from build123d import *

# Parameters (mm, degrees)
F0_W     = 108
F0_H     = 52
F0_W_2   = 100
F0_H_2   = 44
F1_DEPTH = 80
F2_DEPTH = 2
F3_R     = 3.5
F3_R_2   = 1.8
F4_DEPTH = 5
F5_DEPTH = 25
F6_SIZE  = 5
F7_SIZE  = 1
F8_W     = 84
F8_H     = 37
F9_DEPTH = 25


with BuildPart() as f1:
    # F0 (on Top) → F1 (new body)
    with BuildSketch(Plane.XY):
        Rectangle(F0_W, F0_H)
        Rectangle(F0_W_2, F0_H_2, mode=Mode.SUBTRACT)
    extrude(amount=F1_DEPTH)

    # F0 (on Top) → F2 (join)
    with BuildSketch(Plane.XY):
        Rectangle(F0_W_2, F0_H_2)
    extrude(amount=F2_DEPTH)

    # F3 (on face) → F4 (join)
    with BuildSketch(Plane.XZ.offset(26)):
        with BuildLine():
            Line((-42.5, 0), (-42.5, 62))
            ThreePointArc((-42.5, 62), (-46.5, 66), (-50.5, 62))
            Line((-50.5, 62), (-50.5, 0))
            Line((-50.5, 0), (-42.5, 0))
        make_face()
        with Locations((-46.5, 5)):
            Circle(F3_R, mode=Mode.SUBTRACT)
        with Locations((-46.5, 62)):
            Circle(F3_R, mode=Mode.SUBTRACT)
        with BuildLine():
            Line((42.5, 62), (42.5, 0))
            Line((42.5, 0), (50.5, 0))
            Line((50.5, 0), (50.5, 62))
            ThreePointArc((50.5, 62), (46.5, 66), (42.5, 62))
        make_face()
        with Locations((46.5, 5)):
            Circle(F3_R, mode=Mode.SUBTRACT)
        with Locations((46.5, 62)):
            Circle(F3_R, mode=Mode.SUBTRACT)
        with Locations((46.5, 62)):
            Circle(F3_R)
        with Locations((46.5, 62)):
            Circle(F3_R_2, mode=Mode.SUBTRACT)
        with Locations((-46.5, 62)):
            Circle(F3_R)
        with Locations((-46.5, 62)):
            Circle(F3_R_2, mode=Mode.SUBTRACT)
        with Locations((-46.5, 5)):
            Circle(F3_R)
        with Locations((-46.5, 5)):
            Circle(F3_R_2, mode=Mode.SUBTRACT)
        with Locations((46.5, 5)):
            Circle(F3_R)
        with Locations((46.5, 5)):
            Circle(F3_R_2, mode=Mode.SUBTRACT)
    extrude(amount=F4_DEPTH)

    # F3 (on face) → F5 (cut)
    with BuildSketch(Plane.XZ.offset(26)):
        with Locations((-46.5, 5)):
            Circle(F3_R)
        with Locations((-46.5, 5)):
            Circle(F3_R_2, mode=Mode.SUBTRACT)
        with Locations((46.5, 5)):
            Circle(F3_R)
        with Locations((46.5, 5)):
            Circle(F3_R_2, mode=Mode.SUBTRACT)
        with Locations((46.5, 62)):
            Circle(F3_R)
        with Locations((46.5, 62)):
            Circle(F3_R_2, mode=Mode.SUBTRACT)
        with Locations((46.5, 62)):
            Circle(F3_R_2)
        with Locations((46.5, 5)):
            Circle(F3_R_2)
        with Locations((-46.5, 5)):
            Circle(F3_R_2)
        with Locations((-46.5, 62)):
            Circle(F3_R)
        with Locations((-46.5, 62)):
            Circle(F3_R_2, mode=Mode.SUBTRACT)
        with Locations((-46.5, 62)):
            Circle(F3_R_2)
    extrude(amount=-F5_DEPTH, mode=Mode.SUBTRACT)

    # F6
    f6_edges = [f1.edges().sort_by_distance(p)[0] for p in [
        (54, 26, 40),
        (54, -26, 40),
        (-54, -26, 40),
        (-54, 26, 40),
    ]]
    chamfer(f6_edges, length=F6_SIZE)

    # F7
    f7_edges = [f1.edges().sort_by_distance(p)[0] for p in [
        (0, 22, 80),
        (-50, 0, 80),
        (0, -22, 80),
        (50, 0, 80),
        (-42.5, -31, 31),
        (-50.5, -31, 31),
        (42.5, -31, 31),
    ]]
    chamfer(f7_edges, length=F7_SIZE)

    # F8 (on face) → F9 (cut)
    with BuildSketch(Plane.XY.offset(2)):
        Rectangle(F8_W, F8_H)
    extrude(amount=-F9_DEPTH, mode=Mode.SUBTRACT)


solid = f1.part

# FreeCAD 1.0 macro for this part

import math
import FreeCAD as App
import Part
import Sketcher

V = App.Vector
Q = App.Units.Quantity


def edges_at(feature, points):
    """Names of the edges that pass closest to the given points."""
    edges = feature.Shape.Edges
    near = lambda p: min(range(len(edges)), key=lambda i: edges[i].distToShape(Part.Vertex(*p))[0])
    return sorted({f"Edge{near(p) + 1}" for p in points})


def add_polygon(sketch, points):
    """Adds a closed chain of lines whose ends are joined by coincident constraints."""
    first, n = sketch.GeometryCount, len(points)
    for a, b in zip(points, points[1:] + points[:1]):
        sketch.addGeometry(Part.LineSegment(App.Vector(*a, 0), App.Vector(*b, 0)), False)
    for i in range(n):
        sketch.addConstraint(Sketcher.Constraint("Coincident", first + i, 2, first + (i + 1) % n, 1))

doc = App.newDocument("Part")
body = doc.addObject("PartDesign::Body", "Body")

# Sketch on XY plane
sketch1 = body.newObject("Sketcher::SketchObject", "Sketch")
sketch1.AttachmentSupport = (doc.getObject("XY_Plane"), [""])
sketch1.MapMode = "FlatFace"
add_polygon(sketch1, [(-54, 26), (-54, -26), (54, -26), (54, 26)])  # lines 0-3
add_polygon(sketch1, [(50, -22), (-50, -22), (-50, 22), (50, 22)])  # lines 4-7
sketch1.addConstraint(Sketcher.Constraint("Vertical", 0))
sketch1.addConstraint(Sketcher.Constraint("Horizontal", 1))
sketch1.addConstraint(Sketcher.Constraint("Vertical", 2))
sketch1.addConstraint(Sketcher.Constraint("Horizontal", 3))
sketch1.addConstraint(Sketcher.Constraint("Horizontal", 4))
sketch1.addConstraint(Sketcher.Constraint("Vertical", 5))
sketch1.addConstraint(Sketcher.Constraint("Horizontal", 6))
sketch1.addConstraint(Sketcher.Constraint("Vertical", 7))
sketch1.addConstraint(Sketcher.Constraint("Symmetric", 0, 2, 2, 2, -1, 1))
sketch1.addConstraint(Sketcher.Constraint("Symmetric", 4, 2, 6, 2, -1, 1))
sketch1.addConstraint(Sketcher.Constraint("DistanceX", 1, 1, 1, 2, Q("108 mm")))
sketch1.addConstraint(Sketcher.Constraint("DistanceX", 4, 2, 4, 1, Q("100 mm")))
sketch1.addConstraint(Sketcher.Constraint("DistanceY", 0, 2, 0, 1, Q("52 mm")))
sketch1.addConstraint(Sketcher.Constraint("DistanceY", 5, 1, 5, 2, Q("44 mm")))
pad1 = body.newObject("PartDesign::Pad", "Pad")
pad1.Profile = sketch1
pad1.Length = 80

# Sketch on XY plane
sketch2 = body.newObject("Sketcher::SketchObject", "Sketch001")
sketch2.AttachmentSupport = (doc.getObject("XY_Plane"), [""])
sketch2.MapMode = "FlatFace"
add_polygon(sketch2, [(-50, 22), (-50, -22), (50, -22), (50, 22)])  # lines 0-3
sketch2.addConstraint(Sketcher.Constraint("Vertical", 0))
sketch2.addConstraint(Sketcher.Constraint("Horizontal", 1))
sketch2.addConstraint(Sketcher.Constraint("Vertical", 2))
sketch2.addConstraint(Sketcher.Constraint("Horizontal", 3))
sketch2.addConstraint(Sketcher.Constraint("Symmetric", 0, 2, 2, 2, -1, 1))
sketch2.addConstraint(Sketcher.Constraint("DistanceX", 1, 1, 1, 2, Q("100 mm")))
sketch2.addConstraint(Sketcher.Constraint("DistanceY", 0, 2, 0, 1, Q("44 mm")))
pad2 = body.newObject("PartDesign::Pad", "Pad001")
pad2.Profile = sketch2
pad2.Length = 2

# Sketch on XZ plane
sketch3 = body.newObject("Sketcher::SketchObject", "Sketch002")
sketch3.AttachmentSupport = (doc.getObject("XZ_Plane"), [""])
sketch3.MapMode = "FlatFace"
sketch3.AttachmentOffset = App.Placement(V(0, 0, 26), App.Rotation())
sketch3.addGeometry(Part.LineSegment(V(-42.5, 0, 0), V(-42.5, 62, 0)), False)
sketch3.addGeometry(Part.ArcOfCircle(Part.Circle(V(-46.5, 62, 0), V(0, 0, 1), 4), math.radians(0), math.radians(180)), False)
sketch3.addGeometry(Part.LineSegment(V(-50.5, 62, 0), V(-50.5, 0, 0)), False)
sketch3.addGeometry(Part.LineSegment(V(-50.5, 0, 0), V(-42.5, 0, 0)), False)
sketch3.addGeometry(Part.Circle(V(-46.5, 5, 0), V(0, 0, 1), 1.8), False)
sketch3.addGeometry(Part.Circle(V(-46.5, 62, 0), V(0, 0, 1), 1.8), False)
sketch3.addGeometry(Part.LineSegment(V(42.5, 62, 0), V(42.5, 0, 0)), False)
sketch3.addGeometry(Part.LineSegment(V(42.5, 0, 0), V(50.5, 0, 0)), False)
sketch3.addGeometry(Part.LineSegment(V(50.5, 0, 0), V(50.5, 62, 0)), False)
sketch3.addGeometry(Part.ArcOfCircle(Part.Circle(V(46.5, 62, 0), V(0, 0, 1), 4), math.radians(0), math.radians(180)), False)
sketch3.addGeometry(Part.Circle(V(46.5, 5, 0), V(0, 0, 1), 1.8), False)
sketch3.addGeometry(Part.Circle(V(46.5, 62, 0), V(0, 0, 1), 1.8), False)
sketch3.addConstraint(Sketcher.Constraint("Tangent", 0, 2, 1, 1))
sketch3.addConstraint(Sketcher.Constraint("Tangent", 1, 2, 2, 1))
sketch3.addConstraint(Sketcher.Constraint("Coincident", 2, 2, 3, 1))
sketch3.addConstraint(Sketcher.Constraint("Coincident", 3, 2, 0, 1))
sketch3.addConstraint(Sketcher.Constraint("Coincident", 6, 2, 7, 1))
sketch3.addConstraint(Sketcher.Constraint("Coincident", 7, 2, 8, 1))
sketch3.addConstraint(Sketcher.Constraint("Tangent", 8, 2, 9, 1))
sketch3.addConstraint(Sketcher.Constraint("Tangent", 9, 2, 6, 1))
sketch3.addConstraint(Sketcher.Constraint("Vertical", 0))
sketch3.addConstraint(Sketcher.Constraint("Vertical", 2))
sketch3.addConstraint(Sketcher.Constraint("Horizontal", 3))
sketch3.addConstraint(Sketcher.Constraint("Vertical", 6))
sketch3.addConstraint(Sketcher.Constraint("Horizontal", 7))
sketch3.addConstraint(Sketcher.Constraint("Vertical", 8))
sketch3.addConstraint(Sketcher.Constraint("Coincident", 5, 3, 1, 3))
sketch3.addConstraint(Sketcher.Constraint("Coincident", 11, 3, 9, 3))
sketch3.addConstraint(Sketcher.Constraint("Equal", 4, 5))
sketch3.addConstraint(Sketcher.Constraint("Equal", 1, 9))
sketch3.addConstraint(Sketcher.Constraint("Equal", 5, 10))
sketch3.addConstraint(Sketcher.Constraint("Equal", 10, 11))
sketch3.addConstraint(Sketcher.Constraint("Symmetric", 3, 2, 6, 2, -1, 1))
sketch3.addConstraint(Sketcher.Constraint("Symmetric", 4, 3, 10, 3, -2))
sketch3.addConstraint(Sketcher.Constraint("PointOnObject", 2, 2, -1))
sketch3.addConstraint(Sketcher.Constraint("Horizontal", 5, 3, 9, 3))
sketch3.addConstraint(Sketcher.Constraint("Vertical", 1, 3, 4, 3))
sketch3.addConstraint(Sketcher.Constraint("Radius", 1, Q("4 mm")))
sketch3.addConstraint(Sketcher.Constraint("Diameter", 4, Q("3.6 mm")))
sketch3.addConstraint(Sketcher.Constraint("DistanceY", 0, 1, 0, 2, Q("62 mm")))
sketch3.addConstraint(Sketcher.Constraint("DistanceY", -1, 1, 4, 3, Q("5 mm")))
sketch3.addConstraint(Sketcher.Constraint("DistanceX", 1, 3, 9, 3, Q("93 mm")))
pad3 = body.newObject("PartDesign::Pad", "Pad002")
pad3.Profile = sketch3
pad3.Length = 5

# Sketch on XZ plane
sketch4 = body.newObject("Sketcher::SketchObject", "Sketch003")
sketch4.AttachmentSupport = (doc.getObject("XZ_Plane"), [""])
sketch4.MapMode = "FlatFace"
sketch4.AttachmentOffset = App.Placement(V(0, 0, 26), App.Rotation())
sketch4.addGeometry(Part.Circle(V(-46.5, 5, 0), V(0, 0, 1), 3.5), False)
sketch4.addGeometry(Part.Circle(V(46.5, 5, 0), V(0, 0, 1), 3.5), False)
sketch4.addGeometry(Part.Circle(V(46.5, 62, 0), V(0, 0, 1), 3.5), False)
sketch4.addGeometry(Part.Circle(V(-46.5, 62, 0), V(0, 0, 1), 3.5), False)
sketch4.addConstraint(Sketcher.Constraint("Equal", 0, 1))
sketch4.addConstraint(Sketcher.Constraint("Equal", 1, 2))
sketch4.addConstraint(Sketcher.Constraint("Equal", 2, 3))
sketch4.addConstraint(Sketcher.Constraint("Symmetric", 0, 3, 1, 3, -2))
sketch4.addConstraint(Sketcher.Constraint("Symmetric", 2, 3, 3, 3, -2))
sketch4.addConstraint(Sketcher.Constraint("Vertical", 1, 3, 2, 3))
sketch4.addConstraint(Sketcher.Constraint("Diameter", 0, Q("7 mm")))
sketch4.addConstraint(Sketcher.Constraint("DistanceY", -1, 1, 0, 3, Q("5 mm")))
sketch4.addConstraint(Sketcher.Constraint("DistanceY", -1, 1, 2, 3, Q("62 mm")))
sketch4.addConstraint(Sketcher.Constraint("DistanceX", 0, 3, 1, 3, Q("93 mm")))
pocket1 = body.newObject("PartDesign::Pocket", "Pocket")
pocket1.Profile = sketch4
pocket1.Length = 25
doc.recompute()

chamfer = body.newObject("PartDesign::Chamfer", "Chamfer")
chamfer.Base = (pocket1, edges_at(pocket1, [
    (54, 26, 40),
    (54, -26, 40),
    (-54, -26, 40),
    (-54, 26, 40),
]))
chamfer.Size = 5
doc.recompute()

chamfer2 = body.newObject("PartDesign::Chamfer", "Chamfer001")
chamfer2.Base = (chamfer, edges_at(chamfer, [
    (0, 22, 80),
    (-50, 0, 80),
    (0, -22, 80),
    (50, 0, 80),
    (-42.5, -31, 31),
    (-50.5, -31, 31),
    (42.5, -31, 31),
]))
chamfer2.Size = 1

# Sketch on XY plane
sketch5 = body.newObject("Sketcher::SketchObject", "Sketch004")
sketch5.AttachmentSupport = (doc.getObject("XY_Plane"), [""])
sketch5.MapMode = "FlatFace"
sketch5.AttachmentOffset = App.Placement(V(0, 0, 2), App.Rotation())
add_polygon(sketch5, [(-42, 18), (-42, -18), (42, -18), (42, 18)])  # lines 0-3
sketch5.addConstraint(Sketcher.Constraint("Vertical", 0))
sketch5.addConstraint(Sketcher.Constraint("Horizontal", 1))
sketch5.addConstraint(Sketcher.Constraint("Vertical", 2))
sketch5.addConstraint(Sketcher.Constraint("Horizontal", 3))
sketch5.addConstraint(Sketcher.Constraint("Symmetric", 0, 2, 2, 2, -1, 1))
sketch5.addConstraint(Sketcher.Constraint("DistanceX", 1, 1, 1, 2, Q("84 mm")))
sketch5.addConstraint(Sketcher.Constraint("DistanceY", 0, 2, 0, 1, Q("37 mm")))
pocket2 = body.newObject("PartDesign::Pocket", "Pocket001")
pocket2.Profile = sketch5
pocket2.Length = 25

doc.recompute()
